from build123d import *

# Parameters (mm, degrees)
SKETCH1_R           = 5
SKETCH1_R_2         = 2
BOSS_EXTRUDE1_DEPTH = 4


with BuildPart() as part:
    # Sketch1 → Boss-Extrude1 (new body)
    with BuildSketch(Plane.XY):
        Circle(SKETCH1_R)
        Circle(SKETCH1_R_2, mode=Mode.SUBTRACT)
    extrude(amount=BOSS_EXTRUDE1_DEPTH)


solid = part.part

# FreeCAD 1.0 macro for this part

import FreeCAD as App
import Part
import Sketcher

V = App.Vector
Q = App.Units.Quantity

doc = App.newDocument("Part")
body = doc.addObject("PartDesign::Body", "Body")

# Sketch on XY plane
sketch1 = body.newObject("Sketcher::SketchObject", "Sketch")
sketch1.AttachmentSupport = (doc.getObject("XY_Plane"), [""])
sketch1.MapMode = "FlatFace"
sketch1.addGeometry([
    Part.Circle(V(0, 0, 0), V(0, 0, 1), 5),
    Part.Circle(V(0, 0, 0), V(0, 0, 1), 2),
], False)
sketch1.addConstraint([
    Sketcher.Constraint("Coincident", 0, 3, -1, 1),
    Sketcher.Constraint("Coincident", 1, 3, -1, 1),
    Sketcher.Constraint("Diameter", 0, Q("10 mm")),
    Sketcher.Constraint("Diameter", 1, Q("4 mm")),
])
pad1 = body.newObject("PartDesign::Pad", "Pad")
pad1.Profile = sketch1
pad1.Length = 4

doc.recompute()
